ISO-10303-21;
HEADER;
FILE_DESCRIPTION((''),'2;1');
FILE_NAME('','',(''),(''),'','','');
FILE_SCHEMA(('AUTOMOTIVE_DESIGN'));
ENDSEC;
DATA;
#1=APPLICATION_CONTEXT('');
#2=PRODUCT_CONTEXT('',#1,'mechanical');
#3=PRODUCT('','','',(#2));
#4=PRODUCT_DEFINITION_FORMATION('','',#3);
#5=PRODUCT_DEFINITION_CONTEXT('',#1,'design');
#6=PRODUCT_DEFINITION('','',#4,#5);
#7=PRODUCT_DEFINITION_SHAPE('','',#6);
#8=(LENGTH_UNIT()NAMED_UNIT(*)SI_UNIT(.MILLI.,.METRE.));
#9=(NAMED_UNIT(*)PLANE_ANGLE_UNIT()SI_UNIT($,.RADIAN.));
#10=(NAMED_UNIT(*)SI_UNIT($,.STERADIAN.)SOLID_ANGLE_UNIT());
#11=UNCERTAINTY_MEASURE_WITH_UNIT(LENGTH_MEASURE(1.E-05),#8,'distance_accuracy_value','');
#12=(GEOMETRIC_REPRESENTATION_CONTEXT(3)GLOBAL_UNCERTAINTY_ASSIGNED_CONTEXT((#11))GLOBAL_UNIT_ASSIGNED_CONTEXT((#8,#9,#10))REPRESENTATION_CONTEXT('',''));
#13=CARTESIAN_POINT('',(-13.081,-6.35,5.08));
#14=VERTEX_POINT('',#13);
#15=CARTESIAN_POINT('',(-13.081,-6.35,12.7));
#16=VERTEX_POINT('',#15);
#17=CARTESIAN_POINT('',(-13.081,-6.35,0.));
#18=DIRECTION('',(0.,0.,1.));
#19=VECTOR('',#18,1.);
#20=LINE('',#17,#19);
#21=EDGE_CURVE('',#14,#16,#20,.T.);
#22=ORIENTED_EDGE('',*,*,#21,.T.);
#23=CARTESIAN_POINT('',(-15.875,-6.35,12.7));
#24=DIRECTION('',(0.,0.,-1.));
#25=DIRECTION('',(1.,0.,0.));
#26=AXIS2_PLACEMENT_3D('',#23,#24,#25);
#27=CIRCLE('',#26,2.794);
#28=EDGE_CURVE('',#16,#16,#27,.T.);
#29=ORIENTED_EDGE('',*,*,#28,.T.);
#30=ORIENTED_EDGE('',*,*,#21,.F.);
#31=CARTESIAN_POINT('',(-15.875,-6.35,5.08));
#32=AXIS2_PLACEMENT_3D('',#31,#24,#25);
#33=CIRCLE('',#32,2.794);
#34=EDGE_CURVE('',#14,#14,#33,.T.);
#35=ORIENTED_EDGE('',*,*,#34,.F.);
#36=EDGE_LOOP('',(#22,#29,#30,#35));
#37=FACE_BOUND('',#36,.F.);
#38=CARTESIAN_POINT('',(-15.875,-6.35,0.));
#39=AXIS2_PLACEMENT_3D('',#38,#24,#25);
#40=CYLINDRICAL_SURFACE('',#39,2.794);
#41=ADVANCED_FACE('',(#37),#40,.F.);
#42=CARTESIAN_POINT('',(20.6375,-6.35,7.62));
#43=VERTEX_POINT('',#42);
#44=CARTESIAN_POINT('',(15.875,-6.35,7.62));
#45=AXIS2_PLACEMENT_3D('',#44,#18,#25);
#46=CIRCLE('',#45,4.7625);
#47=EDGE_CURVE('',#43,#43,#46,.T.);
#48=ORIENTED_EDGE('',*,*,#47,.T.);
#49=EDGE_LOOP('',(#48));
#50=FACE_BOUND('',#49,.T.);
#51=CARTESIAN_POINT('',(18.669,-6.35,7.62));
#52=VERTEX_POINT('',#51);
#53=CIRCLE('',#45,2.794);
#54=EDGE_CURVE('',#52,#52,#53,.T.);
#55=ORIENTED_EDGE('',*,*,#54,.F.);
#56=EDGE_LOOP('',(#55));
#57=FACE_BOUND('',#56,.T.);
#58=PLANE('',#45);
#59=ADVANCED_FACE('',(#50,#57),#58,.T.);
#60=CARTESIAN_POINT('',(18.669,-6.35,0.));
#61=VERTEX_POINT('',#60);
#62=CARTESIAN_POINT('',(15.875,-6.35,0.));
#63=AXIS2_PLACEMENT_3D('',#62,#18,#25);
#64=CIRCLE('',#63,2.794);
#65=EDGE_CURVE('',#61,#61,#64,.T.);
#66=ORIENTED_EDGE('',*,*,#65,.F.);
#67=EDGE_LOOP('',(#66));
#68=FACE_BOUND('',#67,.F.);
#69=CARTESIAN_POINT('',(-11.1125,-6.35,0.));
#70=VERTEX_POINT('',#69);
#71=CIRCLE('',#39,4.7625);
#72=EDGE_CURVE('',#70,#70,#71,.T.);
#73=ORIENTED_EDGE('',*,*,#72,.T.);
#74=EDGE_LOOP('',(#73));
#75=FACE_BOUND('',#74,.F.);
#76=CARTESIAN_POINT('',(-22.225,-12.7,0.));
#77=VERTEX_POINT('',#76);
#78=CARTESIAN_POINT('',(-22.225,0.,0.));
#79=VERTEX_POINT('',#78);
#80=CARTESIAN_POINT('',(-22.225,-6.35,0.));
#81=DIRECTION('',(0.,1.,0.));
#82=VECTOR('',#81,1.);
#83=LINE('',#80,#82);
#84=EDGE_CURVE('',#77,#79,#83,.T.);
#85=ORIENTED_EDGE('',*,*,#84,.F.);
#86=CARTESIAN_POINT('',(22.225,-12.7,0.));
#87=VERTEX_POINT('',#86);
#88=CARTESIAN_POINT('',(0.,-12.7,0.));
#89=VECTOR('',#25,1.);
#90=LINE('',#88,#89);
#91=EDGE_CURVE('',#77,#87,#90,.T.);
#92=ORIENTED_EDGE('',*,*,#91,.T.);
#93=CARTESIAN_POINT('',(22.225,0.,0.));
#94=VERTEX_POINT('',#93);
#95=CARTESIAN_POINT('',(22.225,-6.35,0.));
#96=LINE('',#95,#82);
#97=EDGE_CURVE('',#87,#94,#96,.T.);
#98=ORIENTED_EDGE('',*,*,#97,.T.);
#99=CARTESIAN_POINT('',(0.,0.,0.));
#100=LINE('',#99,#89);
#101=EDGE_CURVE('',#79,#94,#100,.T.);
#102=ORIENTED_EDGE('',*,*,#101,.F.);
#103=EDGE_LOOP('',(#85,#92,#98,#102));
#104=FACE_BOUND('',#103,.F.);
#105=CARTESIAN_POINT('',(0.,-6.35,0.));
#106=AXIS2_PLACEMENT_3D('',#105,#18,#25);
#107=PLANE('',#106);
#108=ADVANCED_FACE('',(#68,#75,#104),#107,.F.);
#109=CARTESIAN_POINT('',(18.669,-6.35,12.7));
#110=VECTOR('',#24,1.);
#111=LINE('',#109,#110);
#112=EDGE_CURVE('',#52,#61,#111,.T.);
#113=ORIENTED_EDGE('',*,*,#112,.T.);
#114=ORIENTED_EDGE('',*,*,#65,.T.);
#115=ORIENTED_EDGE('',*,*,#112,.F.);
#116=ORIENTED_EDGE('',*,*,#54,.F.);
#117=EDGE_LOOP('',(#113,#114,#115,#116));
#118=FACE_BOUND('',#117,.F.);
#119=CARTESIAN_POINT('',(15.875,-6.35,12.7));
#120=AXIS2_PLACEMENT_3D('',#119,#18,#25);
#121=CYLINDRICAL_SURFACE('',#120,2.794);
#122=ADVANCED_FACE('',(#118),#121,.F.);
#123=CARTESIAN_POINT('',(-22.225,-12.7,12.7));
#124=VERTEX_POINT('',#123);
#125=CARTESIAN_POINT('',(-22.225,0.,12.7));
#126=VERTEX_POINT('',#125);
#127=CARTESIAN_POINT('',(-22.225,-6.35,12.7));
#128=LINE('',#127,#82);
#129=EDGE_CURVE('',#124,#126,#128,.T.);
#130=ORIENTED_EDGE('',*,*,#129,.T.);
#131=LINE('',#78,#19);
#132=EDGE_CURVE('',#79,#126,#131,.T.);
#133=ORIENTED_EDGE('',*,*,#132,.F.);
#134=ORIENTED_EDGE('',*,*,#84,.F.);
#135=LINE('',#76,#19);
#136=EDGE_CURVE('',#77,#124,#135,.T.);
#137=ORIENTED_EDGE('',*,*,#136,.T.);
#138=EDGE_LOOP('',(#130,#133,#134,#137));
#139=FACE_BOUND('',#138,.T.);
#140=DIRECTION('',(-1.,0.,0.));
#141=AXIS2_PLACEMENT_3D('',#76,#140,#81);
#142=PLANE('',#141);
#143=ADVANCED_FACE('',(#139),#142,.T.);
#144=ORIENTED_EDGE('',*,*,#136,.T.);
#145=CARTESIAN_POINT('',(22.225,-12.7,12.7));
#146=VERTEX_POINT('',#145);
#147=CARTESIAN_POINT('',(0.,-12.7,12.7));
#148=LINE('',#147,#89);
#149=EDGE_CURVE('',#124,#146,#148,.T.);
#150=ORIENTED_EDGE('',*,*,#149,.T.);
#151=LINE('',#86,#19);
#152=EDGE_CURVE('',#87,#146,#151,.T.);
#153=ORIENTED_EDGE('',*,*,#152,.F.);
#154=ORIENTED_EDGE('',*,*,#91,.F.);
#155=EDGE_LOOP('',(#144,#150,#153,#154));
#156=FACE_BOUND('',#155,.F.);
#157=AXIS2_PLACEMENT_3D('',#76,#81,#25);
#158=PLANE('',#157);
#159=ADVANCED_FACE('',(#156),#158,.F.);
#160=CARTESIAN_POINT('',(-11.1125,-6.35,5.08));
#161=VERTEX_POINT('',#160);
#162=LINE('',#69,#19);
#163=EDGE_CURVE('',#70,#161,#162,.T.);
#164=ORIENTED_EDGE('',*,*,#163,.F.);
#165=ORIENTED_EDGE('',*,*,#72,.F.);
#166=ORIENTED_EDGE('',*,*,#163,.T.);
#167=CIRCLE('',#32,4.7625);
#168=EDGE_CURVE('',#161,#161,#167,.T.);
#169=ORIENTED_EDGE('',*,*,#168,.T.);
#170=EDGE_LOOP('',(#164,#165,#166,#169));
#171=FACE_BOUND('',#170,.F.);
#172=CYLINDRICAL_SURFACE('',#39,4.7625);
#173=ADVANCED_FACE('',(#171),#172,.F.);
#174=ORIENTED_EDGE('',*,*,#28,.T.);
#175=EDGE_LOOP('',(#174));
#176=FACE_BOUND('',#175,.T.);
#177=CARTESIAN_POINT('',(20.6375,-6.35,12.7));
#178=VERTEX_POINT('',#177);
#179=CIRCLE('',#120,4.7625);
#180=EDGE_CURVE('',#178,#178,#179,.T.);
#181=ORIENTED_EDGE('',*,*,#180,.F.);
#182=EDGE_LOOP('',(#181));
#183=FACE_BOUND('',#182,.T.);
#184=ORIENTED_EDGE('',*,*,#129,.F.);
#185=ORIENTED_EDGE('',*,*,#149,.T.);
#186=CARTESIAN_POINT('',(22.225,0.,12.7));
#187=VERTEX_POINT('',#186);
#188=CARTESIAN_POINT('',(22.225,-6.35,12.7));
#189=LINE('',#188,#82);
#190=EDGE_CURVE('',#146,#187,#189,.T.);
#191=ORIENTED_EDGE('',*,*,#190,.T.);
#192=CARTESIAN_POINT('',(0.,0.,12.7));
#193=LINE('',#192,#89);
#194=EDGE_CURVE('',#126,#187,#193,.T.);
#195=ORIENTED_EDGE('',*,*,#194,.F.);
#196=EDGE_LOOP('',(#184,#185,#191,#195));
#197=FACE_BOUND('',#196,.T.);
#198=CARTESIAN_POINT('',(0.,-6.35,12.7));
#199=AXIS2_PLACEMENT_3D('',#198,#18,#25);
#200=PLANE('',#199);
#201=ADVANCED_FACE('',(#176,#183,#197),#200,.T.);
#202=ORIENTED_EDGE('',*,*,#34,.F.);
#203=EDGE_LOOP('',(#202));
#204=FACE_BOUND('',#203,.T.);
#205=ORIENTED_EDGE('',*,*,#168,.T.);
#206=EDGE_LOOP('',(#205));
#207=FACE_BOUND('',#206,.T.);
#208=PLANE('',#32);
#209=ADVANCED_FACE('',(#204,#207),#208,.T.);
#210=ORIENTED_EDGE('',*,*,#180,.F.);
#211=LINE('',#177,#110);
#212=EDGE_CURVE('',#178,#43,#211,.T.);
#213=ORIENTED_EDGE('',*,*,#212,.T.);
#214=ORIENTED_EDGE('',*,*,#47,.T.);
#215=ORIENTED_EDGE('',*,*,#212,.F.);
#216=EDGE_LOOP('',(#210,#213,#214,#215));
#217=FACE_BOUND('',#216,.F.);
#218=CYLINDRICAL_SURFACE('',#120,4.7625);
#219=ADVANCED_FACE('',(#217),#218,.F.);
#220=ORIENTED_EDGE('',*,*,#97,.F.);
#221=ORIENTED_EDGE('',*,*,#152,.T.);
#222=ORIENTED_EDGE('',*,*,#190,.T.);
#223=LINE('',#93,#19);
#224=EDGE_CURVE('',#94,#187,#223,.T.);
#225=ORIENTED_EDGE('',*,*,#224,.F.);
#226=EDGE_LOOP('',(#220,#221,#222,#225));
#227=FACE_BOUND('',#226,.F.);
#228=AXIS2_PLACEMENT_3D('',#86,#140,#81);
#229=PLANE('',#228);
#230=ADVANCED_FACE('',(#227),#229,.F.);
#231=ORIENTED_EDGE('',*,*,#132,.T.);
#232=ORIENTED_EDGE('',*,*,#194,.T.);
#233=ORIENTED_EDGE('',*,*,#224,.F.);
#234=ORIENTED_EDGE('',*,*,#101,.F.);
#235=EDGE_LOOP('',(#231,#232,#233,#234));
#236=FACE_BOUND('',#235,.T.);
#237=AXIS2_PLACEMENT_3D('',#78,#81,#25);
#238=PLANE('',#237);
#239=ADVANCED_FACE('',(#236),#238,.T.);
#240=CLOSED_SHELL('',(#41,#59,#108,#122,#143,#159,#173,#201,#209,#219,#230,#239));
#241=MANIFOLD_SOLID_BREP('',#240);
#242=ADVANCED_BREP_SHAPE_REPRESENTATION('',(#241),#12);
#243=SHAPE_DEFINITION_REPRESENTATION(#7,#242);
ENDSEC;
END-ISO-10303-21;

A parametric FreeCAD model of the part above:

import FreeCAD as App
import Part
import Sketcher
from FreeCAD import Vector
Q = App.Units.Quantity

doc = App.newDocument("Part")
body = doc.addObject("PartDesign::Body", "Body")

sketch1 = body.newObject("Sketcher::SketchObject", "Sketch")
sketch1.AttachmentSupport = (doc.getObject("XY_Plane"), [""])
sketch1.MapMode = "FlatFace"
sketch1.addGeometry([
    Part.LineSegment(Vector(-22, 0, 0), Vector(-22, -13, 0)),
    Part.LineSegment(Vector(-22, -13, 0), Vector(22, -13, 0)),
    Part.LineSegment(Vector(22, -13, 0), Vector(22, 0, 0)),
    Part.LineSegment(Vector(22, 0, 0), Vector(-22, 0, 0)),
], False)
sketch1.addConstraint([
    Sketcher.Constraint("Coincident", 0, 2, 1, 1),
    Sketcher.Constraint("Coincident", 1, 2, 2, 1),
    Sketcher.Constraint("Coincident", 2, 2, 3, 1),
    Sketcher.Constraint("Coincident", 3, 2, 0, 1),
    Sketcher.Constraint("Vertical", 0),
    Sketcher.Constraint("Horizontal", 1),
    Sketcher.Constraint("Vertical", 2),
    Sketcher.Constraint("Horizontal", 3),
    Sketcher.Constraint("Symmetric", 2, 2, 3, 2, -1, 1),
    Sketcher.Constraint("DistanceY", 0, 2, 0, 1, Q("0.5 in")),
    Sketcher.Constraint("DistanceX", 1, 1, 1, 2, Q("1.75 in")),
])
pad1 = body.newObject("PartDesign::Pad", "Pad")
pad1.Profile = sketch1
pad1.Length = Q("0.5 in")

sketch2 = body.newObject("Sketcher::SketchObject", "Sketch001")
sketch2.AttachmentSupport = (doc.getObject("XY_Plane"), [""])
sketch2.MapMode = "FlatFace"
sketch2.AttachmentOffset = App.Placement(Vector(0, 0, 0.5 * 25.4), App.Rotation())
sketch2.addGeometry(Part.Circle(Vector(15.9, -6.3, 0), Vector(0, 0, 1), 2.8), False)
sketch2.addConstraint([
    Sketcher.Constraint("Diameter", 0, Q("0.22 in")),
    Sketcher.Constraint("DistanceY", 0, 3, -1, 1, Q("0.25 in")),
    Sketcher.Constraint("DistanceX", -1, 1, 0, 3, Q("0.625 in")),
])
pocket1 = body.newObject("PartDesign::Pocket", "Pocket")
pocket1.Profile = sketch2
pocket1.Type = "ThroughAll"

sketch3 = body.newObject("Sketcher::SketchObject", "Sketch002")
sketch3.AttachmentSupport = (doc.getObject("XY_Plane"), [""])
sketch3.MapMode = "FlatFace"
sketch3.addGeometry(Part.Circle(Vector(-15.9, -6.3, 0), Vector(0, 0, 1), 2.8), False)
sketch3.addConstraint([
    Sketcher.Constraint("Diameter", 0, Q("0.22 in")),
    Sketcher.Constraint("DistanceY", 0, 3, -1, 1, Q("0.25 in")),
    Sketcher.Constraint("DistanceX", 0, 3, -1, 1, Q("0.625 in")),
])
pocket2 = body.newObject("PartDesign::Pocket", "Pocket001")
pocket2.Profile = sketch3
pocket2.Type = "ThroughAll"
pocket2.Reversed = True

sketch4 = body.newObject("Sketcher::SketchObject", "Sketch003")
sketch4.AttachmentSupport = (doc.getObject("XY_Plane"), [""])
sketch4.MapMode = "FlatFace"
sketch4.AttachmentOffset = App.Placement(Vector(0, 0, 0.5 * 25.4), App.Rotation())
sketch4.addGeometry(Part.Circle(Vector(15.9, -6.3, 0), Vector(0, 0, 1), 4.8), False)
sketch4.addConstraint([
    Sketcher.Constraint("Diameter", 0, Q("0.375 in")),
    Sketcher.Constraint("DistanceY", 0, 3, -1, 1, Q("0.25 in")),
    Sketcher.Constraint("DistanceX", -1, 1, 0, 3, Q("0.625 in")),
])
pocket3 = body.newObject("PartDesign::Pocket", "Pocket002")
pocket3.Profile = sketch4
pocket3.Length = Q("0.2 in")

sketch5 = body.newObject("Sketcher::SketchObject", "Sketch004")
sketch5.AttachmentSupport = (doc.getObject("XY_Plane"), [""])
sketch5.MapMode = "FlatFace"
sketch5.addGeometry(Part.Circle(Vector(-15.9, -6.3, 0), Vector(0, 0, 1), 4.8), False)
sketch5.addConstraint([
    Sketcher.Constraint("Diameter", 0, Q("0.375 in")),
    Sketcher.Constraint("DistanceY", 0, 3, -1, 1, Q("0.25 in")),
    Sketcher.Constraint("DistanceX", 0, 3, -1, 1, Q("0.625 in")),
])
pocket4 = body.newObject("PartDesign::Pocket", "Pocket003")
pocket4.Profile = sketch5
pocket4.Length = Q("0.2 in")
pocket4.Reversed = True

doc.recompute()
